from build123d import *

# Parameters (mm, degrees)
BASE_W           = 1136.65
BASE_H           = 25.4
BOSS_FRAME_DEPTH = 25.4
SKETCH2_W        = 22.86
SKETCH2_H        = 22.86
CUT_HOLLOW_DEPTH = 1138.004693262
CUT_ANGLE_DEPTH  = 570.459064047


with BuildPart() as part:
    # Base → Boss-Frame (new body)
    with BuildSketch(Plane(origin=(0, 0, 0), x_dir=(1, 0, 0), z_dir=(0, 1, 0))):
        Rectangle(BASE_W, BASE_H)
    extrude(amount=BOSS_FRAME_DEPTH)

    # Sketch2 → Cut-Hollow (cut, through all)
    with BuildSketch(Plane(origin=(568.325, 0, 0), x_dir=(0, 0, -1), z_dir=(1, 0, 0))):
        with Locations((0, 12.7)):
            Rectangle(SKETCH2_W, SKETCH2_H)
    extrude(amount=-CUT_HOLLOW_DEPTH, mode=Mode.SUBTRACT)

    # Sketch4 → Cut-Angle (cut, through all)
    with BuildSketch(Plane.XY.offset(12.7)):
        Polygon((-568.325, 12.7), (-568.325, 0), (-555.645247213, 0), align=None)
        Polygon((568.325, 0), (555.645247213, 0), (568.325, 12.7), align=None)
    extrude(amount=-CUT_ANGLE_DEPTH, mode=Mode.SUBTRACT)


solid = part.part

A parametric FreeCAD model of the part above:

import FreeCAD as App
import Part
import Sketcher
from FreeCAD import Vector
Q = App.Units.Quantity


def add_polygon(sketch, points):
    """Adds a closed chain of lines whose ends are joined by coincident constraints."""
    first, n = sketch.GeometryCount, len(points)
    for a, b in zip(points, points[1:] + points[:1]):
        sketch.addGeometry(Part.LineSegment(App.Vector(*a, 0), App.Vector(*b, 0)), False)
    for i in range(n):
        sketch.addConstraint(Sketcher.Constraint("Coincident", first + i, 2, first + (i + 1) % n, 1))

doc = App.newDocument("Part")
body = doc.addObject("PartDesign::Body", "Body")

# Sketch on XZ plane
sketch1 = body.newObject("Sketcher::SketchObject", "Sketch")
sketch1.AttachmentSupport = (doc.getObject("XZ_Plane"), [""])
sketch1.MapMode = "FlatFace"
add_polygon(sketch1, [(-568, -13), (-568, 13), (568, 13), (568, -13)])  # lines 0-3
sketch1.addConstraint([
    Sketcher.Constraint("Vertical", 0),
    Sketcher.Constraint("Horizontal", 1),
    Sketcher.Constraint("Vertical", 2),
    Sketcher.Constraint("Horizontal", 3),
    Sketcher.Constraint("Symmetric", 0, 2, 2, 2, -1, 1),
    Sketcher.Constraint("DistanceY", 0, 1, 0, 2, Q("1 in")),
    Sketcher.Constraint("DistanceX", 1, 1, 1, 2, Q("44.75 in")),
])
pad1 = body.newObject("PartDesign::Pad", "Pad")
pad1.Profile = sketch1
pad1.Length = Q("1 in")
pad1.Reversed = True

# Sketch on YZ plane
sketch2 = body.newObject("Sketcher::SketchObject", "Sketch001")
sketch2.AttachmentSupport = (doc.getObject("YZ_Plane"), [""])
sketch2.MapMode = "FlatFace"
sketch2.AttachmentOffset = App.Placement(Vector(0, 0, 22.375 * 25.4), App.Rotation())
add_polygon(sketch2, [(24, 11), (1, 11), (1, -11), (24, -11)])  # lines 0-3
sketch2.addConstraint([
    Sketcher.Constraint("Horizontal", 0),
    Sketcher.Constraint("Vertical", 1),
    Sketcher.Constraint("Horizontal", 2),
    Sketcher.Constraint("Vertical", 3),
    Sketcher.Constraint("Equal", 2, 1),
    Sketcher.Constraint("DistanceX", 0, 2, 0, 1, Q("0.9 in")),
    Sketcher.Constraint("DistanceX", -1, 1, 0, 2, Q("0.05 in")),
    Sketcher.Constraint("DistanceY", -1, 1, 0, 2, Q("0.45 in")),
])
pocket1 = body.newObject("PartDesign::Pocket", "Pocket")
pocket1.Profile = sketch2
pocket1.Type = "ThroughAll"

# Sketch on XY plane
sketch3 = body.newObject("Sketcher::SketchObject", "Sketch002")
sketch3.AttachmentSupport = (doc.getObject("XY_Plane"), [""])
sketch3.MapMode = "FlatFace"
sketch3.AttachmentOffset = App.Placement(Vector(0, 0, 0.5 * 25.4), App.Rotation())
add_polygon(sketch3, [(-568, 13), (-568, 0), (-556, 0)])  # lines 0-2
add_polygon(sketch3, [(556, 0), (568, 0), (568, 13)])  # lines 3-5
sketch3.addConstraint([
    Sketcher.Constraint("Vertical", 0),
    Sketcher.Constraint("Horizontal", 1),
    Sketcher.Constraint("Horizontal", 3),
    Sketcher.Constraint("Vertical", 4),
    Sketcher.Constraint("Symmetric", 0, 2, 3, 2, -1, 1),
    Sketcher.Constraint("Symmetric", 1, 2, 5, 2, -2),
    Sketcher.Constraint("Horizontal", 2, 2, 4, 2),
    Sketcher.Constraint("DistanceY", 0, 2, 0, 1, Q("0.5 in")),
    Sketcher.Constraint("DistanceX", 0, 2, 3, 2, Q("44.75 in")),
    Sketcher.Constraint("Distance", 2, Q("17.946201 mm")),
])
pocket2 = body.newObject("PartDesign::Pocket", "Pocket001")
pocket2.Profile = sketch3
pocket2.Type = "ThroughAll"

doc.recompute()
